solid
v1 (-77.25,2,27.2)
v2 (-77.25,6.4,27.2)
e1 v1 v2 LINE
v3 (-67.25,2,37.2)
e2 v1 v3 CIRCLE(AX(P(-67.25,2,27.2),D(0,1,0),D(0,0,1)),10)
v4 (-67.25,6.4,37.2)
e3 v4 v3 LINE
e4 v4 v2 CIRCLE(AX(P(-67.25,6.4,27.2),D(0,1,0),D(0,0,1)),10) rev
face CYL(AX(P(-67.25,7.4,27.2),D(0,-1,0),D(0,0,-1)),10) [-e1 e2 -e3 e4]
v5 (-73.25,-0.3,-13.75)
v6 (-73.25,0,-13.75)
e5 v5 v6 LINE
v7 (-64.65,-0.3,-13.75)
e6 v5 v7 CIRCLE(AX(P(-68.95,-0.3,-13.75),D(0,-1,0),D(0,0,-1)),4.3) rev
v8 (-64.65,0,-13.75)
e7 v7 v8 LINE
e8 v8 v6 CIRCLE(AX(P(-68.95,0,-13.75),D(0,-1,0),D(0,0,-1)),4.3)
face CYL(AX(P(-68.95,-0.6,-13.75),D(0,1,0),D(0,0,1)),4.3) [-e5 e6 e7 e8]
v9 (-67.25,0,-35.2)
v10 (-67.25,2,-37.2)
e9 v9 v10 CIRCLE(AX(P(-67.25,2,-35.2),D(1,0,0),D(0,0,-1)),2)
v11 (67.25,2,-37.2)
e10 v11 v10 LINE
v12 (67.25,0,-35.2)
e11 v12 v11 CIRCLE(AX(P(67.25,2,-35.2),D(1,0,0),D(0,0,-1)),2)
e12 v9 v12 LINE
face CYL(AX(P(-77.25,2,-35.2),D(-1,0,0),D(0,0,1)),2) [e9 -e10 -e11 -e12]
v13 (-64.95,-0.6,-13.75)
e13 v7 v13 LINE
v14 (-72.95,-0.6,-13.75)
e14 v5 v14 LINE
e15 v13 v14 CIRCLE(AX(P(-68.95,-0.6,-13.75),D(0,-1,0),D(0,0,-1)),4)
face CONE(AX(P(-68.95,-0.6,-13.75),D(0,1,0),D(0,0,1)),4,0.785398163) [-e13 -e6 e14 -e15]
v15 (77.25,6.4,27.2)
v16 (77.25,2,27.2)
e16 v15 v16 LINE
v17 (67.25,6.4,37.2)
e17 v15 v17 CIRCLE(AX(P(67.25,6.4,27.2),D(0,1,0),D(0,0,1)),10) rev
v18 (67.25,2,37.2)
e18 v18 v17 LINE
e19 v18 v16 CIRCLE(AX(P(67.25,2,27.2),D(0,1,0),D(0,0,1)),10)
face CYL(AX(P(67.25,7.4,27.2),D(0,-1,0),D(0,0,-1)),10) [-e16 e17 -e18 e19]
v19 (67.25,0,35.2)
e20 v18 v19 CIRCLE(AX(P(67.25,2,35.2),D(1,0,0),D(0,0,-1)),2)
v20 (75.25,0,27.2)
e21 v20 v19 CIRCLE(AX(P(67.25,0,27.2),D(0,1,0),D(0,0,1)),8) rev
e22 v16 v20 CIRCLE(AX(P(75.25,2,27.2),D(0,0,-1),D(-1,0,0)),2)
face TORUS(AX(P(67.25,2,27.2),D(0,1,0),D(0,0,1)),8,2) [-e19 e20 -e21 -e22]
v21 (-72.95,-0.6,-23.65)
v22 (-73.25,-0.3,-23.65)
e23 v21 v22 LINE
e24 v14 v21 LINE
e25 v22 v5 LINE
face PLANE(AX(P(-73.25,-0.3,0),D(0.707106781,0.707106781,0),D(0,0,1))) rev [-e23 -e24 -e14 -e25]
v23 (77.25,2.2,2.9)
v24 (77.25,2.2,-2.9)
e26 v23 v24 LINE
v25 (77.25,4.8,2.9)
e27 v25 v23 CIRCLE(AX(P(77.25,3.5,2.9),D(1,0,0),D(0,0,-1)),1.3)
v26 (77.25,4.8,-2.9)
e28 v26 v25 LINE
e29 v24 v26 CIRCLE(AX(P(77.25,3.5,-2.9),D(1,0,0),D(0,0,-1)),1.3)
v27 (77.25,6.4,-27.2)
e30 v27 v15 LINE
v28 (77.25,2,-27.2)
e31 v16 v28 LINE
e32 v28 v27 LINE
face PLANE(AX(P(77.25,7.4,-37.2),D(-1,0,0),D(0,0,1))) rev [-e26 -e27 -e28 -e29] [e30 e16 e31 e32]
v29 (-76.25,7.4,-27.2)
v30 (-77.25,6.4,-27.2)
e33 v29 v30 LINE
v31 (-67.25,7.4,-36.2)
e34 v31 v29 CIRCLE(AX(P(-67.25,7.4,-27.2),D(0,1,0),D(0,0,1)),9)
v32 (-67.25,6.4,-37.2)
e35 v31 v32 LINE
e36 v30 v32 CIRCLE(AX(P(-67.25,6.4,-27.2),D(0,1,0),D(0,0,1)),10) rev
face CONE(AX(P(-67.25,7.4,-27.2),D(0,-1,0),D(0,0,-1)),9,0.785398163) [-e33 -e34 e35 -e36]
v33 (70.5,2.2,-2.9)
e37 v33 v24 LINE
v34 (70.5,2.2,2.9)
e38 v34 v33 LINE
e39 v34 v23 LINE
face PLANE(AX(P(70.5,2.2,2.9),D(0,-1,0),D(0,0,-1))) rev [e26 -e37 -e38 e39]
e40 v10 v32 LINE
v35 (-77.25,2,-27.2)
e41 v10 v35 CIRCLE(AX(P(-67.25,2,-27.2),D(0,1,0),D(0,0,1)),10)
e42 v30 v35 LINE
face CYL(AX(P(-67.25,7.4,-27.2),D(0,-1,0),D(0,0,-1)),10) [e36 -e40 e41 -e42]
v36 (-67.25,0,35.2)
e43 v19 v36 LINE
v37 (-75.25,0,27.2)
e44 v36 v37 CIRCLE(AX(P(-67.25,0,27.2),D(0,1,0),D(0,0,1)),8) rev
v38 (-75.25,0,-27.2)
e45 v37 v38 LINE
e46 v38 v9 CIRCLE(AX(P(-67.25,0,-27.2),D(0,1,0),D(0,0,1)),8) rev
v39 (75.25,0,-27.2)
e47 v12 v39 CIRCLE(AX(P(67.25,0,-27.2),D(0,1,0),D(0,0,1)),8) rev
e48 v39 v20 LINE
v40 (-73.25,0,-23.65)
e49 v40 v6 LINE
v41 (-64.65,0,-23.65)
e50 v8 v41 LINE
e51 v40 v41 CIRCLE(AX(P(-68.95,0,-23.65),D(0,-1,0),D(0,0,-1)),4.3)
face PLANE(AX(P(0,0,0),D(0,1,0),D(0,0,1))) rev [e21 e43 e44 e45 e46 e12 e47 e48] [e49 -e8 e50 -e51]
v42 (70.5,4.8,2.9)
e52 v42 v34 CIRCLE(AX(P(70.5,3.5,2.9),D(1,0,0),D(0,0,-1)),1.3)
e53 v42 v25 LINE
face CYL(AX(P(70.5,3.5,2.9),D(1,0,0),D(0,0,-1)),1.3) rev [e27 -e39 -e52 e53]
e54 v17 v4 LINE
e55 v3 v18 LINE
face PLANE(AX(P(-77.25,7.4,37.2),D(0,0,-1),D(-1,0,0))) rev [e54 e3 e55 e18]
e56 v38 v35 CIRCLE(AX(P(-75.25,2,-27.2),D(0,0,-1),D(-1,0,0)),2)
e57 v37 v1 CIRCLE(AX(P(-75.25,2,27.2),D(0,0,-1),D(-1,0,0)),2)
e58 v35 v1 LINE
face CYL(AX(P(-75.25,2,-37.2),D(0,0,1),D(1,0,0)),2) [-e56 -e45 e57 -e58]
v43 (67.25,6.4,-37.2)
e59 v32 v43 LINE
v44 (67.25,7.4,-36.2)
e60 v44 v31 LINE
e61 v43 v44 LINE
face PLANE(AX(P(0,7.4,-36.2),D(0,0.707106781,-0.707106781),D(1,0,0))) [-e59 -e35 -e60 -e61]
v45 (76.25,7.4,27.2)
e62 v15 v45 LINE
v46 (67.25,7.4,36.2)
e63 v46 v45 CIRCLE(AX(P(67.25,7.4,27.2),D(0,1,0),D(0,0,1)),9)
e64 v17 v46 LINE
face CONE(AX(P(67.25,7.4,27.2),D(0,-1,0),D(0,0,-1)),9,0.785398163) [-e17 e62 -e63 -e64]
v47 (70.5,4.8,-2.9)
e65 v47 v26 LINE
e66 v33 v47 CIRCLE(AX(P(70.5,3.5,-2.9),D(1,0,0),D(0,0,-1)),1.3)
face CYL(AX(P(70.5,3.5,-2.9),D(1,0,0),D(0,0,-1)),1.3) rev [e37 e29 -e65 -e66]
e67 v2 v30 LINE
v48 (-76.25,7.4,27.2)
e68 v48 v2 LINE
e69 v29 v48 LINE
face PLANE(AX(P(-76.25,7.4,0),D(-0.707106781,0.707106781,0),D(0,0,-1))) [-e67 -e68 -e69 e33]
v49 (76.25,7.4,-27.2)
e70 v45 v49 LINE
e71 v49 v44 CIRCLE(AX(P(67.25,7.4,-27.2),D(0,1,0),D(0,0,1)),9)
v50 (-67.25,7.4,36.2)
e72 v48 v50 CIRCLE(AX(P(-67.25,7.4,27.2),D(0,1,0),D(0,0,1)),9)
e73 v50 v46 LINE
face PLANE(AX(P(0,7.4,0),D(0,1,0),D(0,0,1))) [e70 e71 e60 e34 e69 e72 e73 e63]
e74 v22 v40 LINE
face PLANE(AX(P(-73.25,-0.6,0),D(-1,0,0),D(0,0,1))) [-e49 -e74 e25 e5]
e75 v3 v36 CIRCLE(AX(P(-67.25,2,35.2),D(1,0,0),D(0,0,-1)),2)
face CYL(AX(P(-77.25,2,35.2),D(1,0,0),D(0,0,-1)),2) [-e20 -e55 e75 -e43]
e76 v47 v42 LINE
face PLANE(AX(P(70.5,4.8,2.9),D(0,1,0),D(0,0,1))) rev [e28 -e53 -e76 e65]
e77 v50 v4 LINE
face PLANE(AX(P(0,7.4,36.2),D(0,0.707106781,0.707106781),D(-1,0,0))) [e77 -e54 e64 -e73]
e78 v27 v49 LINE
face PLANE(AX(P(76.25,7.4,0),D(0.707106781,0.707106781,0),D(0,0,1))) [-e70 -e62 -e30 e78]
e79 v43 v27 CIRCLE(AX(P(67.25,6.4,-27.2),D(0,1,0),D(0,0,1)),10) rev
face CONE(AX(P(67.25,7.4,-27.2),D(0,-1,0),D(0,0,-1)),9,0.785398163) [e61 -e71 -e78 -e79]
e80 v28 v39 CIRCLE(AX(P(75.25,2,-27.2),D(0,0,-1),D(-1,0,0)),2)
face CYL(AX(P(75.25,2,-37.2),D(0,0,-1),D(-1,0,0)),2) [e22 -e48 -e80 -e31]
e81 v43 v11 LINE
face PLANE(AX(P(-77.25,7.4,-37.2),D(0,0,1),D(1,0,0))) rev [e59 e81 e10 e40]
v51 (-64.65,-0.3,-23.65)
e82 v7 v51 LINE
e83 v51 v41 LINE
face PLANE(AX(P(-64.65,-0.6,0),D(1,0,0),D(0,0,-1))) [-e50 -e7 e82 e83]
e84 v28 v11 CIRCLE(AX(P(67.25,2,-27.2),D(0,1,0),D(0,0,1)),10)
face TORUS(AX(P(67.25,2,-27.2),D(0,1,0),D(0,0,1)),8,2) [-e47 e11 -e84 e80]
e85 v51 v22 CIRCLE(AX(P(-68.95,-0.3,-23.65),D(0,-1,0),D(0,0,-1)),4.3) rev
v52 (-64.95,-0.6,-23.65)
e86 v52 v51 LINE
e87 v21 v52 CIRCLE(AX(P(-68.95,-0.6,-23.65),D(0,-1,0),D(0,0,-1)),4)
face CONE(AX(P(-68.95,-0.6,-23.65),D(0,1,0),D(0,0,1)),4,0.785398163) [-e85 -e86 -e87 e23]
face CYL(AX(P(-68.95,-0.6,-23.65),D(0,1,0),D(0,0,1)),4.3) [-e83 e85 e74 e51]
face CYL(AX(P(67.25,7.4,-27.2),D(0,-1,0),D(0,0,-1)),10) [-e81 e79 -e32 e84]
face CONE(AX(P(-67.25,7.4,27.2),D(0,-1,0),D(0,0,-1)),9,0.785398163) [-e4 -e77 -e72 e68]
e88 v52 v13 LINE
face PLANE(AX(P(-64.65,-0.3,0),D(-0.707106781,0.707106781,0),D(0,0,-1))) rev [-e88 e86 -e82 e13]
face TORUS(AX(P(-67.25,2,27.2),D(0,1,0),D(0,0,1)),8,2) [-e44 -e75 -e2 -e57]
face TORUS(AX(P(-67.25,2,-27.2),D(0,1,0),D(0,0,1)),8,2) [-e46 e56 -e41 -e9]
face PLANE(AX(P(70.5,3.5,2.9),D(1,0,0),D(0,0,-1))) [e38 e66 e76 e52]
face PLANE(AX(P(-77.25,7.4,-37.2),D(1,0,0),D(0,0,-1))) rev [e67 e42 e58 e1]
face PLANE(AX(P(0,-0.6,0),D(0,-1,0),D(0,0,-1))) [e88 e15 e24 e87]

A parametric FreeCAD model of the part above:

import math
import FreeCAD as App
import Part
import Sketcher

V = App.Vector
Q = App.Units.Quantity


def edges_at(feature, points):
    """Names of the edges that pass closest to the given points."""
    edges = feature.Shape.Edges
    near = lambda p: min(range(len(edges)), key=lambda i: edges[i].distToShape(Part.Vertex(*p))[0])
    return sorted({f"Edge{near(p) + 1}" for p in points})


def add_polygon(sketch, points):
    """Adds a closed chain of lines whose ends are joined by coincident constraints."""
    first, n = sketch.GeometryCount, len(points)
    for a, b in zip(points, points[1:] + points[:1]):
        sketch.addGeometry(Part.LineSegment(App.Vector(*a, 0), App.Vector(*b, 0)), False)
    for i in range(n):
        sketch.addConstraint(Sketcher.Constraint("Coincident", first + i, 2, first + (i + 1) % n, 1))

doc = App.newDocument("Part")
body = doc.addObject("PartDesign::Body", "Body")

sketch1 = doc.addObject("Sketcher::SketchObject", "Sketch")
body.addObject(sketch1)
sketch1.AttachmentSupport = (doc.XZ_Plane, [""])
sketch1.MapMode = "FlatFace"
add_polygon(sketch1, [(-77.25, -37.2), (-77.25, 37.2), (77.25, 37.2), (77.25, -37.2)])
sketch1.addConstraint([
    Sketcher.Constraint("Vertical", 0),
    Sketcher.Constraint("Horizontal", 1),
    Sketcher.Constraint("Vertical", 2),
    Sketcher.Constraint("Horizontal", 3),
    Sketcher.Constraint("Symmetric", 0, 2, 2, 2, -1, 1),
    Sketcher.Constraint("DistanceX", 1, 1, 1, 2, Q("154.5 mm")),
    Sketcher.Constraint("DistanceY", 0, 1, 0, 2, Q("74.4 mm")),
])
pad1 = doc.addObject("PartDesign::Pad", "Pad")
body.addObject(pad1)
pad1.Profile = sketch1
pad1.Length = 7.4
pad1.Reversed = True
doc.recompute()

fillet = doc.addObject("PartDesign::Fillet", "Fillet")
body.addObject(fillet)
fillet.Base = (pad1, edges_at(pad1, [
    (77.25, 3.7, 37.2),
    (-77.25, 3.7, 37.2),
    (-77.25, 3.7, -37.2),
    (77.25, 3.7, -37.2),
]))
fillet.Radius = 10
doc.recompute()

chamfer = doc.addObject("PartDesign::Chamfer", "Chamfer")
body.addObject(chamfer)
chamfer.Base = (fillet, edges_at(fillet, [
    (-77.25, 7.4, 0),
    (0, 7.4, -37.2),
    (77.25, 7.4, 0),
    (0, 7.4, 37.2),
    (74.321, 7.4, 34.271),
    (-74.321, 7.4, 34.271),
    (74.321, 7.4, -34.271),
    (-74.321, 7.4, -34.271),
]))
chamfer.Size = 1
doc.recompute()

fillet2 = doc.addObject("PartDesign::Fillet", "Fillet001")
body.addObject(fillet2)
fillet2.Base = (chamfer, edges_at(chamfer, [
    (-77.25, 0, 0),
    (77.25, 0, 0),
    (0, 0, 37.2),
    (0, 0, -37.2),
    (74.321, 0, 34.271),
    (-74.321, 0, 34.271),
    (74.321, 0, -34.271),
    (-74.321, 0, -34.271),
]))
fillet2.Radius = 2

sketch2 = doc.addObject("Sketcher::SketchObject", "Sketch001")
body.addObject(sketch2)
sketch2.AttachmentSupport = (doc.XZ_Plane, [""])
sketch2.MapMode = "FlatFace"
sketch2.addGeometry([
    Part.ArcOfCircle(Part.Circle(V(-68.95, -13.75, 0), V(0, 0, 1), 4.3), math.radians(0), math.radians(180)),
    Part.LineSegment(V(-73.25, -13.75, 0), V(-73.25, -23.65, 0)),
    Part.ArcOfCircle(Part.Circle(V(-68.95, -23.65, 0), V(0, 0, 1), 4.3), math.radians(180), math.radians(360)),
    Part.LineSegment(V(-64.65, -23.65, 0), V(-64.65, -13.75, 0)),
], False)
sketch2.addConstraint([
    Sketcher.Constraint("Tangent", 0, 2, 1, 1),
    Sketcher.Constraint("Tangent", 1, 2, 2, 1),
    Sketcher.Constraint("Tangent", 2, 2, 3, 1),
    Sketcher.Constraint("Tangent", 3, 2, 0, 1),
    Sketcher.Constraint("Vertical", 1),
    Sketcher.Constraint("Vertical", 3),
    Sketcher.Constraint("Radius", 0, Q("4.3 mm")),
    Sketcher.Constraint("DistanceY", 1, 2, 1, 1, Q("9.9 mm")),
    Sketcher.Constraint("DistanceX", 0, 3, -1, 1, Q("68.95 mm")),
    Sketcher.Constraint("DistanceY", 0, 3, -1, 1, Q("13.75 mm")),
])
pad2 = doc.addObject("PartDesign::Pad", "Pad001")
body.addObject(pad2)
pad2.Profile = sketch2
pad2.Length = 0.6
doc.recompute()

chamfer2 = doc.addObject("PartDesign::Chamfer", "Chamfer001")
body.addObject(chamfer2)
chamfer2.Base = (pad2, edges_at(pad2, [
    (-64.65, -0.6, -18.7),
    (-73.25, -0.6, -18.7),
    (-68.95, -0.6, -9.45),
    (-68.95, -0.6, -27.95),
]))
chamfer2.Size = 0.3

sketch3 = doc.addObject("Sketcher::SketchObject", "Sketch002")
body.addObject(sketch3)
sketch3.AttachmentSupport = (doc.YZ_Plane, [""])
sketch3.MapMode = "FlatFace"
sketch3.AttachmentOffset = App.Placement(V(0, 0, 77.25), App.Rotation())
sketch3.addGeometry([
    Part.LineSegment(V(4.8, -2.9, 0), V(4.8, 2.9, 0)),
    Part.ArcOfCircle(Part.Circle(V(3.5, 2.9, 0), V(0, 0, 1), 1.3), math.radians(0), math.radians(180)),
    Part.LineSegment(V(2.2, 2.9, 0), V(2.2, -2.9, 0)),
    Part.ArcOfCircle(Part.Circle(V(3.5, -2.9, 0), V(0, 0, 1), 1.3), math.radians(180), math.radians(360)),
], False)
sketch3.addConstraint([
    Sketcher.Constraint("Tangent", 0, 2, 1, 1),
    Sketcher.Constraint("Tangent", 1, 2, 2, 1),
    Sketcher.Constraint("Tangent", 2, 2, 3, 1),
    Sketcher.Constraint("Tangent", 3, 2, 0, 1),
    Sketcher.Constraint("Vertical", 0),
    Sketcher.Constraint("Vertical", 2),
    Sketcher.Constraint("Radius", 1, Q("1.3 mm")),
    Sketcher.Constraint("DistanceY", 0, 1, 0, 2, Q("5.8 mm")),
    Sketcher.Constraint("DistanceX", -1, 1, 1, 3, Q("3.5 mm")),
    Sketcher.Constraint("DistanceY", -1, 1, 1, 3, Q("2.9 mm")),
])
pocket1 = doc.addObject("PartDesign::Pocket", "Pocket")
body.addObject(pocket1)
pocket1.Profile = sketch3
pocket1.Length = 6.75

doc.recompute()
